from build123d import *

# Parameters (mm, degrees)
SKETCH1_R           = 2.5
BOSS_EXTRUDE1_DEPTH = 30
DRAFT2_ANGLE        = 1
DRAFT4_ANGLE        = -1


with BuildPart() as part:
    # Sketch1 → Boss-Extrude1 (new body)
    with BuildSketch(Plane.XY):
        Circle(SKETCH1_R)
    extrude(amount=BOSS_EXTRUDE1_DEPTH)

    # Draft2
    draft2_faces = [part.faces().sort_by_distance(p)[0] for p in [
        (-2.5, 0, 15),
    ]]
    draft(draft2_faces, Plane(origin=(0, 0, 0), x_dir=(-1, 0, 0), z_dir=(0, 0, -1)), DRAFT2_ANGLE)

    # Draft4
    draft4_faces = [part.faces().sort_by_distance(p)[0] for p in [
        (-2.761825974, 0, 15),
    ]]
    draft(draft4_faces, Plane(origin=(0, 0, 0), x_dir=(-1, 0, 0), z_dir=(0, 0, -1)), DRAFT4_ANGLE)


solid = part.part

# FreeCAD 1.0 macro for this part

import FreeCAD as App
import Part
import Sketcher


def faces_at(feature, points):
    """Names of the faces that lie closest to the given points."""
    faces = feature.Shape.Faces
    near = lambda p: min(range(len(faces)), key=lambda i: faces[i].distToShape(Part.Vertex(*p))[0])
    return sorted({f"Face{near(p) + 1}" for p in points})

doc = App.newDocument("Part")
body = doc.addObject("PartDesign::Body", "Body")

# Sketch on XY plane
sketch1 = body.newObject("Sketcher::SketchObject", "Sketch")
sketch1.AttachmentSupport = (doc.getObject("XY_Plane"), [""])
sketch1.MapMode = "FlatFace"
sketch1.addGeometry(Part.Circle(App.Vector(0, 0, 0), App.Vector(0, 0, 1), 2.5), False)
sketch1.addConstraint(Sketcher.Constraint("Coincident", 0, 3, -1, 1))
sketch1.addConstraint(Sketcher.Constraint("Diameter", 0, 5.0))
pad1 = body.newObject("PartDesign::Pad", "Pad")
pad1.Profile = sketch1
pad1.Length = 30
doc.recompute()

draft = body.newObject("PartDesign::Draft", "Draft")
draft.Base = (pad1, faces_at(pad1, [(-2.5, 0, 15)]))
draft.NeutralPlane = (doc.getObject("XY_Plane"), [""])
draft.Angle = 1
draft.Reversed = True
doc.recompute()

draft2 = body.newObject("PartDesign::Draft", "Draft001")
draft2.Base = (draft, faces_at(draft, [(-2.762, 0, 15)]))
draft2.NeutralPlane = (doc.getObject("XY_Plane"), [""])
draft2.Angle = 1
draft2.Reversed = False

doc.recompute()
